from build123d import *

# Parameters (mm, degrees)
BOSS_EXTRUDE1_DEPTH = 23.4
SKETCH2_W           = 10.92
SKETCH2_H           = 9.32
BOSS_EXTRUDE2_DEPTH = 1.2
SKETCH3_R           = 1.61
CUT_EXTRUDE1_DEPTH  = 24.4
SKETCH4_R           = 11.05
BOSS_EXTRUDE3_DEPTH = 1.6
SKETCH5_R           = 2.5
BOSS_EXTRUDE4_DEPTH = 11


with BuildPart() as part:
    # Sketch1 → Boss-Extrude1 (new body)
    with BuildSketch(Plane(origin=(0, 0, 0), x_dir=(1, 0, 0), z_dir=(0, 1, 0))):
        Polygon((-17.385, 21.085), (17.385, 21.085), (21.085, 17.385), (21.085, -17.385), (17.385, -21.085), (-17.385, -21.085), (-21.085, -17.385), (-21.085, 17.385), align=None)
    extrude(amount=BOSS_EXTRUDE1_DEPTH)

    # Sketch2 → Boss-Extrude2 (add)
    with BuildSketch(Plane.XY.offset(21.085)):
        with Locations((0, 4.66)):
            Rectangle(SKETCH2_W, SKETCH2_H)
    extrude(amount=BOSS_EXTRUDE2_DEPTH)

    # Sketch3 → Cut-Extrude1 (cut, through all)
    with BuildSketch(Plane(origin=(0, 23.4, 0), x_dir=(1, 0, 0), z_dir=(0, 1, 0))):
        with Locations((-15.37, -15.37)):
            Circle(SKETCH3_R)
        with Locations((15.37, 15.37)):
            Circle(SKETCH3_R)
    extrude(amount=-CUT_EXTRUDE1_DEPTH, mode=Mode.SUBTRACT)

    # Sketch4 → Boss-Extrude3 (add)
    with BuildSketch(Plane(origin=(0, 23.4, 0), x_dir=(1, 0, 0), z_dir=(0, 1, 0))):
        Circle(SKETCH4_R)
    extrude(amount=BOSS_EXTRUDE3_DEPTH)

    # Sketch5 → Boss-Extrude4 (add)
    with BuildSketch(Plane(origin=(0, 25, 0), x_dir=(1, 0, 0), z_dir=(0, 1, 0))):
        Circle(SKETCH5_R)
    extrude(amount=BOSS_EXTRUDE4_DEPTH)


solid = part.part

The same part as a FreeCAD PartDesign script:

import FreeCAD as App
import Part
import Sketcher


def add_polygon(sketch, points):
    """Adds a closed chain of lines whose ends are joined by coincident constraints."""
    first, n = sketch.GeometryCount, len(points)
    for a, b in zip(points, points[1:] + points[:1]):
        sketch.addGeometry(Part.LineSegment(App.Vector(*a, 0), App.Vector(*b, 0)), False)
    for i in range(n):
        sketch.addConstraint(Sketcher.Constraint("Coincident", first + i, 2, first + (i + 1) % n, 1))

doc = App.newDocument("Part")
body = doc.addObject("PartDesign::Body", "Body")

sketch1 = body.newObject("Sketcher::SketchObject", "Sketch")
sketch1.AttachmentSupport = (doc.getObject("XZ_Plane"), [""])
sketch1.MapMode = "FlatFace"
add_polygon(sketch1, [(17, -21), (-17, -21), (-21, -17), (-21, 17), (-17, 21), (17, 21), (21, 17), (21, -17)])
sketch1.addConstraint([
    Sketcher.Constraint("Horizontal", 0),
    Sketcher.Constraint("Vertical", 2),
    Sketcher.Constraint("Horizontal", 4),
    Sketcher.Constraint("Vertical", 6),
    Sketcher.Constraint("Symmetric", 0, 2, 4, 2, -1, 1),
    Sketcher.Constraint("Symmetric", 1, 2, 5, 2, -1, 1),
    Sketcher.Constraint("Perpendicular", 1, 3),
    Sketcher.Constraint("Perpendicular", 5, 7),
    Sketcher.Constraint("Horizontal", 2, 2, 5, 2),
    Sketcher.Constraint("Horizontal", 1, 2, 6, 2),
    Sketcher.Constraint("Vertical", 0, 2, 3, 2),
    Sketcher.Constraint("Equal", 4, 2),
    Sketcher.Constraint("DistanceX", 0, 2, 0, 1, 34.77),
    Sketcher.Constraint("DistanceX", 1, 2, 0, 2, 3.7),
])
pad1 = body.newObject("PartDesign::Pad", "Pad")
pad1.Profile = sketch1
pad1.Length = 23.4
pad1.Reversed = True

sketch2 = body.newObject("Sketcher::SketchObject", "Sketch001")
sketch2.AttachmentSupport = (doc.getObject("XY_Plane"), [""])
sketch2.MapMode = "FlatFace"
sketch2.AttachmentOffset = App.Placement(App.Vector(0, 0, 21.085), App.Rotation())
add_polygon(sketch2, [(-5, 9), (-5, 0), (5, 0), (5, 9)])
sketch2.addConstraint([
    Sketcher.Constraint("Vertical", 0),
    Sketcher.Constraint("Horizontal", 1),
    Sketcher.Constraint("Vertical", 2),
    Sketcher.Constraint("Horizontal", 3),
    Sketcher.Constraint("Symmetric", 0, 2, 1, 2, -1, 1),
    Sketcher.Constraint("DistanceX", 1, 1, 1, 2, 10.92),
    Sketcher.Constraint("DistanceY", 0, 2, 0, 1, 9.32),
])
pad2 = body.newObject("PartDesign::Pad", "Pad001")
pad2.Profile = sketch2
pad2.Length = 1.2

sketch3 = body.newObject("Sketcher::SketchObject", "Sketch002")
sketch3.AttachmentSupport = (doc.getObject("XZ_Plane"), [""])
sketch3.MapMode = "FlatFace"
sketch3.AttachmentOffset = App.Placement(App.Vector(0, 0, -23.4), App.Rotation())
sketch3.addGeometry([
    Part.Circle(App.Vector(-15.4, 15.4, 0), App.Vector(0, 0, 1), 1.6),
    Part.Circle(App.Vector(15.4, -15.4, 0), App.Vector(0, 0, 1), 1.6),
], False)
sketch3.addConstraint([
    Sketcher.Constraint("Equal", 0, 1),
    Sketcher.Constraint("Symmetric", 0, 3, 1, 3, -1, 1),
    Sketcher.Constraint("Diameter", 0, 3.22),
    Sketcher.Constraint("DistanceX", 0, 3, -1, 1, 15.37),
    Sketcher.Constraint("DistanceY", -1, 1, 0, 3, 15.37),
])
pocket1 = body.newObject("PartDesign::Pocket", "Pocket")
pocket1.Profile = sketch3
pocket1.Type = "ThroughAll"
pocket1.Reversed = True

sketch4 = body.newObject("Sketcher::SketchObject", "Sketch003")
sketch4.AttachmentSupport = (doc.getObject("XZ_Plane"), [""])
sketch4.MapMode = "FlatFace"
sketch4.AttachmentOffset = App.Placement(App.Vector(0, 0, -23.4), App.Rotation())
sketch4.addGeometry(Part.Circle(App.Vector(0, 0, 0), App.Vector(0, 0, 1), 11), False)
sketch4.addConstraint([
    Sketcher.Constraint("Coincident", 0, 3, -1, 1),
    Sketcher.Constraint("Diameter", 0, 22.1),
])
pad3 = body.newObject("PartDesign::Pad", "Pad002")
pad3.Profile = sketch4
pad3.Length = 1.6
pad3.Reversed = True

sketch5 = body.newObject("Sketcher::SketchObject", "Sketch004")
sketch5.AttachmentSupport = (doc.getObject("XZ_Plane"), [""])
sketch5.MapMode = "FlatFace"
sketch5.AttachmentOffset = App.Placement(App.Vector(0, 0, -25), App.Rotation())
sketch5.addGeometry(Part.Circle(App.Vector(0, 0, 0), App.Vector(0, 0, 1), 2.5), False)
sketch5.addConstraint([
    Sketcher.Constraint("Coincident", 0, 3, -1, 1),
    Sketcher.Constraint("Diameter", 0, 5.0),
])
pad4 = body.newObject("PartDesign::Pad", "Pad003")
pad4.Profile = sketch5
pad4.Length = 11
pad4.Reversed = True

doc.recompute()
